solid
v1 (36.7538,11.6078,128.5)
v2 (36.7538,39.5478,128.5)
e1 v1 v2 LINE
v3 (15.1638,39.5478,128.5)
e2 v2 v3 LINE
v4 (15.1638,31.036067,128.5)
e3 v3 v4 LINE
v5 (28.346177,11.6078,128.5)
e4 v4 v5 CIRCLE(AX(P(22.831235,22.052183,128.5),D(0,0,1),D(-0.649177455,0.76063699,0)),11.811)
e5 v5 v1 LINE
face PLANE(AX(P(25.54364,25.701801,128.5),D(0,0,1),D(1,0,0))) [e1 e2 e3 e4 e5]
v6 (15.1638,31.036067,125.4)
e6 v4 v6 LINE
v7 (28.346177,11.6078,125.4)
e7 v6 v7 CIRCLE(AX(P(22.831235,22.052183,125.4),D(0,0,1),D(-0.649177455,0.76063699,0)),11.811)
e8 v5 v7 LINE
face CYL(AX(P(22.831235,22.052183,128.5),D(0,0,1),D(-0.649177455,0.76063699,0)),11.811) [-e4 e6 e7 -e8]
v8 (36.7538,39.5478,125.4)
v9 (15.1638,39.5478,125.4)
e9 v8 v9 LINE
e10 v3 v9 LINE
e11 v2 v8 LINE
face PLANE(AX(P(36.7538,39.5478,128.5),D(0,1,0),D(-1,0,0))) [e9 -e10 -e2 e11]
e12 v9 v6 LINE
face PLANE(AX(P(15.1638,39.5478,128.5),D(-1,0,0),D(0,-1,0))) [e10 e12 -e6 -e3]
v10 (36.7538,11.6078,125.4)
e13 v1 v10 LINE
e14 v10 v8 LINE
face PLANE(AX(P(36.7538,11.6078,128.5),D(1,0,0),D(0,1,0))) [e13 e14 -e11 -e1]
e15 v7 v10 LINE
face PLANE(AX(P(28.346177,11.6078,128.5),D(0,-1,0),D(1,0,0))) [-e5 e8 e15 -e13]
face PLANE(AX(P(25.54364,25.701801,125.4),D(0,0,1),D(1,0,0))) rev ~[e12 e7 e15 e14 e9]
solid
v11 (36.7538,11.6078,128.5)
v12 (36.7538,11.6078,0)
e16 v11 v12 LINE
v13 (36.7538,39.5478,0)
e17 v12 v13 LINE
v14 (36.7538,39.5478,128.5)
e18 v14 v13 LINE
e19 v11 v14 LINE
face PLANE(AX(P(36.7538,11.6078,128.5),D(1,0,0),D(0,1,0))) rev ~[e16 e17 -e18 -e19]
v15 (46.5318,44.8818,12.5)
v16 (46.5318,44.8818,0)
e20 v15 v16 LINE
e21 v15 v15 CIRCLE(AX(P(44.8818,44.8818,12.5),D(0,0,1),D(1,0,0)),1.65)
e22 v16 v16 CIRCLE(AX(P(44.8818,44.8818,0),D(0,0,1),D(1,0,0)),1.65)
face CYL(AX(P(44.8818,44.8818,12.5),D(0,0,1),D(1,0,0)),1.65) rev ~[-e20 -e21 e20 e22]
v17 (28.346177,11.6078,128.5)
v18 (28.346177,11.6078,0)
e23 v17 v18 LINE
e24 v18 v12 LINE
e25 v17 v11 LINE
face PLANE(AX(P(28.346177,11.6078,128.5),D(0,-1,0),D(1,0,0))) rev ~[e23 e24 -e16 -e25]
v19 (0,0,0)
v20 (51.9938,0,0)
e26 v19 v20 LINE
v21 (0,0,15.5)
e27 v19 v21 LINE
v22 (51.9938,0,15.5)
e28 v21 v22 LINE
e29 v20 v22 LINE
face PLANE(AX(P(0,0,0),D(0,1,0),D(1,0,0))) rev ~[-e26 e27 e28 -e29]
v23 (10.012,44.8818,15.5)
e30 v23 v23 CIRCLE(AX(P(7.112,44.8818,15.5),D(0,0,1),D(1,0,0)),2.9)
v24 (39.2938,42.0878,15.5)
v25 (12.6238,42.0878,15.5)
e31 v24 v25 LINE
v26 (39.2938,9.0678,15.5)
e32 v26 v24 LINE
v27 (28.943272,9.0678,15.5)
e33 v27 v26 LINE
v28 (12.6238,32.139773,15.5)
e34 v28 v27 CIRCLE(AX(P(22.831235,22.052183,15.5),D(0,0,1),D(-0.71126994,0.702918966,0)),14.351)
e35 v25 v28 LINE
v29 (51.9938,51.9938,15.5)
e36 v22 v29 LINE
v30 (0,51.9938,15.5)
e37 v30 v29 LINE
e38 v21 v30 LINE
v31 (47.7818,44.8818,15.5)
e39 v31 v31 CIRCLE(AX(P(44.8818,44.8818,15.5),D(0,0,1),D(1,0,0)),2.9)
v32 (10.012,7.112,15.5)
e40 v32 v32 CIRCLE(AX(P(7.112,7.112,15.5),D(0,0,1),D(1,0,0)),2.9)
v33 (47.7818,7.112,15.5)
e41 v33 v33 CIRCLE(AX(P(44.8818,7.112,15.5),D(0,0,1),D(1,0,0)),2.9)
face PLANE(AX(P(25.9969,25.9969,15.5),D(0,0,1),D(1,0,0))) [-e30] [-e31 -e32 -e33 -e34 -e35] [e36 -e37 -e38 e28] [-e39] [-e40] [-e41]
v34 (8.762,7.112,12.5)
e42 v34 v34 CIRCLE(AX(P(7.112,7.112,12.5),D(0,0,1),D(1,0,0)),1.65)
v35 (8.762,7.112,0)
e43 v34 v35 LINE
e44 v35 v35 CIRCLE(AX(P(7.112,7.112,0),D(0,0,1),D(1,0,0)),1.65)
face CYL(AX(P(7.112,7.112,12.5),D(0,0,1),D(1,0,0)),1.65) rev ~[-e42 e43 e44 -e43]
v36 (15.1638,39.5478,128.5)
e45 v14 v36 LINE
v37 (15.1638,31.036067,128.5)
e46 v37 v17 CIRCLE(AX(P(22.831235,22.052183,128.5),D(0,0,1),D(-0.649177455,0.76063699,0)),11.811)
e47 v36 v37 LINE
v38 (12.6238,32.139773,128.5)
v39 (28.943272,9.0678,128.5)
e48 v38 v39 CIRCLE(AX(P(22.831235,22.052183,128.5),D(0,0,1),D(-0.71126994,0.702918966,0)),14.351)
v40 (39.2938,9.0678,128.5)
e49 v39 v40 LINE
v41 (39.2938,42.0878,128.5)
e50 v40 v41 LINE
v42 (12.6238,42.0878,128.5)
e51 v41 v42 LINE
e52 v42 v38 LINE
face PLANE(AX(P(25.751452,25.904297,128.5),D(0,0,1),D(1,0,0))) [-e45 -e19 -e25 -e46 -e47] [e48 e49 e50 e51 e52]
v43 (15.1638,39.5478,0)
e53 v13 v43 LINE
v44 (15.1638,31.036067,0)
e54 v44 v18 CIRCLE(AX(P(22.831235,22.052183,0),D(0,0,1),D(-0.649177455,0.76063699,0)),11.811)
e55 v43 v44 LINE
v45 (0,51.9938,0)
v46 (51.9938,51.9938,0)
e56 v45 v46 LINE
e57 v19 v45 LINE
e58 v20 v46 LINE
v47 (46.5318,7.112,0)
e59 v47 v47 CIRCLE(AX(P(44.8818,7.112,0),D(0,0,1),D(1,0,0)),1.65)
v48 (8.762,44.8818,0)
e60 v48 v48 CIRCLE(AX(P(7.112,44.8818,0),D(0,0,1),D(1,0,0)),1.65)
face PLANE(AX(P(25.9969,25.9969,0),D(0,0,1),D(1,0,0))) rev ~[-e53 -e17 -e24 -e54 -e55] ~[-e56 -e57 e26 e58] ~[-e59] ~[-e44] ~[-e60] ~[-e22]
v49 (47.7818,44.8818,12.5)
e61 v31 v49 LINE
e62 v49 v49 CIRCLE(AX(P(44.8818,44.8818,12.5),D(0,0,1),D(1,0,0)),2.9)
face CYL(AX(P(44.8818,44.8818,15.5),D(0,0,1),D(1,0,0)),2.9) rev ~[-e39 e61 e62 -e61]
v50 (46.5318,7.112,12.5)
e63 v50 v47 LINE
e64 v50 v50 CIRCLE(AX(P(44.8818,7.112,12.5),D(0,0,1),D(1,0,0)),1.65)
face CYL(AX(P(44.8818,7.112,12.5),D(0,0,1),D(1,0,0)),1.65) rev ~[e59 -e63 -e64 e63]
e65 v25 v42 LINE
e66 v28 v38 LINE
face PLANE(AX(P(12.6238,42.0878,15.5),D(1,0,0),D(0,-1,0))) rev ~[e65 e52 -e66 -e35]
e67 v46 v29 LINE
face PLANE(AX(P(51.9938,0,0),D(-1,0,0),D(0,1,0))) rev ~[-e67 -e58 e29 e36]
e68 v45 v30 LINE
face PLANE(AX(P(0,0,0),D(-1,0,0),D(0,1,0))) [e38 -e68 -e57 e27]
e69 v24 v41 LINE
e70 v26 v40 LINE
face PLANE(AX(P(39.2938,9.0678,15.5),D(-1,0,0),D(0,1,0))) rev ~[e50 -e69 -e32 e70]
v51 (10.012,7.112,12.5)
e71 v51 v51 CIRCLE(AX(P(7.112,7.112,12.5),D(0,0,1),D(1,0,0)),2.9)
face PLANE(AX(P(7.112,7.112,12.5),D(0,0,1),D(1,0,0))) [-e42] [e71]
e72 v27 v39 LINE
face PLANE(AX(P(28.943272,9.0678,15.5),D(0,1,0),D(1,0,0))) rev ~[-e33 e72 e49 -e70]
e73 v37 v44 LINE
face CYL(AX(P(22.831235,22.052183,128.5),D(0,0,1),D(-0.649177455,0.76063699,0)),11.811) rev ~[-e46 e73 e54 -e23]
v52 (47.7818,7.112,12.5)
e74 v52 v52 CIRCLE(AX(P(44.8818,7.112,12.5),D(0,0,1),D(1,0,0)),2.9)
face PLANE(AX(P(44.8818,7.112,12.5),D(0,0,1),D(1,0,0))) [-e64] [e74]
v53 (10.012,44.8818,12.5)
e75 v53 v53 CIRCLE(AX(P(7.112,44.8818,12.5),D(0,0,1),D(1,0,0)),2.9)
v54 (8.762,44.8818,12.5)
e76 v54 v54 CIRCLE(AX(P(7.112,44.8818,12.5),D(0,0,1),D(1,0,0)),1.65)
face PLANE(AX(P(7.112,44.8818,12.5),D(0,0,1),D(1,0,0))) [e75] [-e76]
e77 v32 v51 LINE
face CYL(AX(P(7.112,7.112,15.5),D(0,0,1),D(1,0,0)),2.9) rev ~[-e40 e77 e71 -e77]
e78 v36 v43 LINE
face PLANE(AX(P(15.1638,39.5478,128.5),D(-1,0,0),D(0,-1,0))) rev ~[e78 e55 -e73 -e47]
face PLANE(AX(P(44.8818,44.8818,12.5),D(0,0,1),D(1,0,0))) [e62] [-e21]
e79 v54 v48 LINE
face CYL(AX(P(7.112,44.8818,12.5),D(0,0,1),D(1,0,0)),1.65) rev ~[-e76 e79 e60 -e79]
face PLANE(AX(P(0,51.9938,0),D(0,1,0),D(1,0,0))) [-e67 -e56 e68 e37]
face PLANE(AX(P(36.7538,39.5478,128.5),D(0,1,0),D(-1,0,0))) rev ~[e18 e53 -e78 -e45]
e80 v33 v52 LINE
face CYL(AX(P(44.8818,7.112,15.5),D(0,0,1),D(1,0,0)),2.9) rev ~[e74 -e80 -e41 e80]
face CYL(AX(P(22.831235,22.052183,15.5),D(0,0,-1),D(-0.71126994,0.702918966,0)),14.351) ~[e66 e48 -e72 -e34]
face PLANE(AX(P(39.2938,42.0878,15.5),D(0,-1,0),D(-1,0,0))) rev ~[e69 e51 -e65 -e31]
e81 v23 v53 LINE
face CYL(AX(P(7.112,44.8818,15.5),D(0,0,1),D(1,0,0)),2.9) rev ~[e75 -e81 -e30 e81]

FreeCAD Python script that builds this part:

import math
import FreeCAD as App
import Part
import Sketcher

V = App.Vector
Q = App.Units.Quantity

doc = App.newDocument("Part")
body = doc.addObject("PartDesign::Body", "Body")

# Sketch on XY plane
sketch1 = body.newObject("Sketcher::SketchObject", "Sketch")
sketch1.AttachmentSupport = (doc.getObject("XY_Plane"), [""])
sketch1.MapMode = "FlatFace"
sketch1.addGeometry(Part.LineSegment(V(0, 51.9938, 0), V(0, 0, 0)), False)
sketch1.addGeometry(Part.LineSegment(V(0, 0, 0), V(51.9938, 0, 0)), False)
sketch1.addGeometry(Part.LineSegment(V(51.9938, 0, 0), V(51.9938, 51.9938, 0)), False)
sketch1.addGeometry(Part.LineSegment(V(51.9938, 51.9938, 0), V(0, 51.9938, 0)), False)
sketch1.addConstraint(Sketcher.Constraint("Coincident", 0, 2, 1, 1))
sketch1.addConstraint(Sketcher.Constraint("Coincident", 1, 2, 2, 1))
sketch1.addConstraint(Sketcher.Constraint("Coincident", 2, 2, 3, 1))
sketch1.addConstraint(Sketcher.Constraint("Coincident", 3, 2, 0, 1))
sketch1.addConstraint(Sketcher.Constraint("Vertical", 0))
sketch1.addConstraint(Sketcher.Constraint("Horizontal", 1))
sketch1.addConstraint(Sketcher.Constraint("Vertical", 2))
sketch1.addConstraint(Sketcher.Constraint("Horizontal", 3))
sketch1.addConstraint(Sketcher.Constraint("Coincident", 0, 2, -1, 1))
sketch1.addConstraint(Sketcher.Constraint("Equal", 3, 0))
sketch1.addConstraint(Sketcher.Constraint("DistanceX", 1, 1, 1, 2, Q("2.047 in")))
pad1 = body.newObject("PartDesign::Pad", "Pad")
pad1.Profile = sketch1
pad1.Length = 15.5

# Sketch on XY plane
sketch2 = body.newObject("Sketcher::SketchObject", "Sketch001")
sketch2.AttachmentSupport = (doc.getObject("XY_Plane"), [""])
sketch2.MapMode = "FlatFace"
sketch2.AttachmentOffset = App.Placement(V(0, 0, 15.5), App.Rotation())
sketch2.addGeometry(Part.Circle(V(7.112, 44.8818, 0), V(0, 0, 1), 2.9), False)
sketch2.addGeometry(Part.Circle(V(44.8818, 44.8818, 0), V(0, 0, 1), 2.9), False)
sketch2.addGeometry(Part.Circle(V(7.112, 7.112, 0), V(0, 0, 1), 2.9), False)
sketch2.addGeometry(Part.Circle(V(44.8818, 7.112, 0), V(0, 0, 1), 2.9), False)
sketch2.addConstraint(Sketcher.Constraint("Equal", 0, 1))
sketch2.addConstraint(Sketcher.Constraint("Equal", 1, 2))
sketch2.addConstraint(Sketcher.Constraint("Equal", 2, 3))
sketch2.addConstraint(Sketcher.Constraint("Horizontal", 0, 3, 1, 3))
sketch2.addConstraint(Sketcher.Constraint("Horizontal", 2, 3, 3, 3))
sketch2.addConstraint(Sketcher.Constraint("Vertical", 0, 3, 2, 3))
sketch2.addConstraint(Sketcher.Constraint("Vertical", 1, 3, 3, 3))
sketch2.addConstraint(Sketcher.Constraint("Diameter", 0, 5.8))
sketch2.addConstraint(Sketcher.Constraint("DistanceX", -1, 1, 0, 3, Q("0.28 in")))
sketch2.addConstraint(Sketcher.Constraint("DistanceY", -1, 1, 2, 3, Q("0.28 in")))
sketch2.addConstraint(Sketcher.Constraint("DistanceY", -1, 1, 0, 3, Q("1.767 in")))
sketch2.addConstraint(Sketcher.Constraint("DistanceX", -1, 1, 1, 3, Q("1.767 in")))
pocket1 = body.newObject("PartDesign::Pocket", "Pocket")
pocket1.Profile = sketch2
pocket1.Length = 3

# Sketch on XY plane
sketch3 = body.newObject("Sketcher::SketchObject", "Sketch002")
sketch3.AttachmentSupport = (doc.getObject("XY_Plane"), [""])
sketch3.MapMode = "FlatFace"
sketch3.AttachmentOffset = App.Placement(V(0, 0, 12.5), App.Rotation())
sketch3.addGeometry(Part.Circle(V(7.112, 44.8818, 0), V(0, 0, 1), 1.65), False)
sketch3.addConstraint(Sketcher.Constraint("Diameter", 0, 3.3))
sketch3.addConstraint(Sketcher.Constraint("DistanceX", -1, 1, 0, 3, Q("0.28 in")))
sketch3.addConstraint(Sketcher.Constraint("DistanceY", -1, 1, 0, 3, Q("1.767 in")))
pocket2 = body.newObject("PartDesign::Pocket", "Pocket001")
pocket2.Profile = sketch3
pocket2.Type = "ThroughAll"

# Sketch on XY plane
sketch4 = body.newObject("Sketcher::SketchObject", "Sketch003")
sketch4.AttachmentSupport = (doc.getObject("XY_Plane"), [""])
sketch4.MapMode = "FlatFace"
sketch4.AttachmentOffset = App.Placement(V(0, 0, 12.5), App.Rotation())
sketch4.addGeometry(Part.Circle(V(44.8818, 44.8818, 0), V(0, 0, 1), 1.65), False)
sketch4.addConstraint(Sketcher.Constraint("Diameter", 0, 3.3))
sketch4.addConstraint(Sketcher.Constraint("DistanceX", -1, 1, 0, 3, Q("1.767 in")))
sketch4.addConstraint(Sketcher.Constraint("DistanceY", -1, 1, 0, 3, Q("1.767 in")))
pocket3 = body.newObject("PartDesign::Pocket", "Pocket002")
pocket3.Profile = sketch4
pocket3.Type = "ThroughAll"

# Sketch on XY plane
sketch5 = body.newObject("Sketcher::SketchObject", "Sketch004")
sketch5.AttachmentSupport = (doc.getObject("XY_Plane"), [""])
sketch5.MapMode = "FlatFace"
sketch5.AttachmentOffset = App.Placement(V(0, 0, 12.5), App.Rotation())
sketch5.addGeometry(Part.Circle(V(7.112, 7.112, 0), V(0, 0, 1), 1.65), False)
sketch5.addConstraint(Sketcher.Constraint("Diameter", 0, 3.3))
sketch5.addConstraint(Sketcher.Constraint("DistanceX", -1, 1, 0, 3, Q("0.28 in")))
sketch5.addConstraint(Sketcher.Constraint("DistanceY", -1, 1, 0, 3, Q("0.28 in")))
pocket4 = body.newObject("PartDesign::Pocket", "Pocket003")
pocket4.Profile = sketch5
pocket4.Type = "ThroughAll"

# Sketch on XY plane
sketch6 = body.newObject("Sketcher::SketchObject", "Sketch005")
sketch6.AttachmentSupport = (doc.getObject("XY_Plane"), [""])
sketch6.MapMode = "FlatFace"
sketch6.AttachmentOffset = App.Placement(V(0, 0, 12.5), App.Rotation())
sketch6.addGeometry(Part.Circle(V(44.8818, 7.112, 0), V(0, 0, 1), 1.65), False)
sketch6.addConstraint(Sketcher.Constraint("Diameter", 0, 3.3))
sketch6.addConstraint(Sketcher.Constraint("DistanceY", -1, 1, 0, 3, Q("0.28 in")))
sketch6.addConstraint(Sketcher.Constraint("DistanceX", -1, 1, 0, 3, Q("1.767 in")))
pocket5 = body.newObject("PartDesign::Pocket", "Pocket004")
pocket5.Profile = sketch6
pocket5.Type = "ThroughAll"

# Sketch on XY plane
sketch7 = body.newObject("Sketcher::SketchObject", "Sketch006")
sketch7.AttachmentSupport = (doc.getObject("XY_Plane"), [""])
sketch7.MapMode = "FlatFace"
sketch7.AttachmentOffset = App.Placement(V(0, 0, 15.5), App.Rotation())
sketch7.addGeometry(Part.LineSegment(V(39.2938, 9.0678, 0), V(39.2938, 42.0878, 0)), False)
sketch7.addGeometry(Part.LineSegment(V(39.2938, 42.0878, 0), V(12.6238, 42.0878, 0)), False)
sketch7.addGeometry(Part.LineSegment(V(12.6238, 42.0878, 0), V(12.6238, 32.139773, 0)), False)
sketch7.addGeometry(Part.ArcOfCircle(Part.Circle(V(22.831235, 22.052183, 0), V(0, 0, 1), 14.351), math.radians(135.338335), math.radians(295.207407)), False)
sketch7.addGeometry(Part.LineSegment(V(28.943272, 9.0678, 0), V(39.2938, 9.0678, 0)), False)
sketch7.addConstraint(Sketcher.Constraint("Coincident", 0, 2, 1, 1))
sketch7.addConstraint(Sketcher.Constraint("Coincident", 1, 2, 2, 1))
sketch7.addConstraint(Sketcher.Constraint("Coincident", 2, 2, 3, 1))
sketch7.addConstraint(Sketcher.Constraint("Coincident", 3, 2, 4, 1))
sketch7.addConstraint(Sketcher.Constraint("Coincident", 4, 2, 0, 1))
sketch7.addConstraint(Sketcher.Constraint("Vertical", 0))
sketch7.addConstraint(Sketcher.Constraint("Horizontal", 1))
sketch7.addConstraint(Sketcher.Constraint("Vertical", 2))
sketch7.addConstraint(Sketcher.Constraint("Horizontal", 4))
sketch7.addConstraint(Sketcher.Constraint("DistanceY", 0, 1, 0, 2, Q("1.3 in")))
sketch7.addConstraint(Sketcher.Constraint("Radius", 3, Q("0.565 in")))
sketch7.addConstraint(Sketcher.Constraint("DistanceX", 1, 2, 1, 1, Q("1.05 in")))
sketch7.addConstraint(Sketcher.Constraint("DistanceX", -1, 1, 0, 2, Q("1.547 in")))
sketch7.addConstraint(Sketcher.Constraint("DistanceY", -1, 1, 0, 2, Q("1.657 in")))
sketch7.addConstraint(Sketcher.Constraint("DistanceX", 4, 1, 4, 2, 10.350528))
sketch7.addConstraint(Sketcher.Constraint("DistanceY", 2, 2, 2, 1, 9.948027))
pad2 = body.newObject("PartDesign::Pad", "Pad001")
pad2.Profile = sketch7
pad2.Length = 113

# Sketch on XY plane
sketch8 = body.newObject("Sketcher::SketchObject", "Sketch007")
sketch8.AttachmentSupport = (doc.getObject("XY_Plane"), [""])
sketch8.MapMode = "FlatFace"
sketch8.AttachmentOffset = App.Placement(V(0, 0, 128.5), App.Rotation())
sketch8.addGeometry(Part.LineSegment(V(36.7538, 11.6078, 0), V(36.7538, 39.5478, 0)), False)
sketch8.addGeometry(Part.LineSegment(V(36.7538, 39.5478, 0), V(15.1638, 39.5478, 0)), False)
sketch8.addGeometry(Part.LineSegment(V(15.1638, 39.5478, 0), V(15.1638, 31.036067, 0)), False)
sketch8.addGeometry(Part.ArcOfCircle(Part.Circle(V(22.831235, 22.052183, 0), V(0, 0, 1), 11.811), math.radians(130.479614), math.radians(297.835373)), False)
sketch8.addGeometry(Part.LineSegment(V(28.346177, 11.6078, 0), V(36.7538, 11.6078, 0)), False)
sketch8.addConstraint(Sketcher.Constraint("Coincident", 0, 2, 1, 1))
sketch8.addConstraint(Sketcher.Constraint("Coincident", 1, 2, 2, 1))
sketch8.addConstraint(Sketcher.Constraint("Coincident", 2, 2, 3, 1))
sketch8.addConstraint(Sketcher.Constraint("Coincident", 3, 2, 4, 1))
sketch8.addConstraint(Sketcher.Constraint("Coincident", 4, 2, 0, 1))
sketch8.addConstraint(Sketcher.Constraint("Vertical", 0))
sketch8.addConstraint(Sketcher.Constraint("Horizontal", 1))
sketch8.addConstraint(Sketcher.Constraint("Vertical", 2))
sketch8.addConstraint(Sketcher.Constraint("Horizontal", 4))
sketch8.addConstraint(Sketcher.Constraint("DistanceY", 0, 1, 0, 2, Q("1.1 in")))
sketch8.addConstraint(Sketcher.Constraint("Radius", 3, Q("0.465 in")))
sketch8.addConstraint(Sketcher.Constraint("DistanceX", 1, 2, 1, 1, Q("0.85 in")))
sketch8.addConstraint(Sketcher.Constraint("DistanceX", -1, 1, 0, 2, Q("1.447 in")))
sketch8.addConstraint(Sketcher.Constraint("DistanceY", -1, 1, 0, 2, Q("1.557 in")))
sketch8.addConstraint(Sketcher.Constraint("DistanceX", 4, 1, 4, 2, 8.407623))
sketch8.addConstraint(Sketcher.Constraint("DistanceY", 2, 2, 2, 1, 8.511733))
pocket6 = body.newObject("PartDesign::Pocket", "Pocket005")
pocket6.Profile = sketch8
pocket6.Type = "ThroughAll"
body2 = doc.addObject("PartDesign::Body", "Body001")

# Sketch on XY plane
sketch9 = body2.newObject("Sketcher::SketchObject", "Sketch008")
sketch9.AttachmentSupport = (doc.getObject("XY_Plane001"), [""])
sketch9.MapMode = "FlatFace"
sketch9.AttachmentOffset = App.Placement(V(0, 0, 128.5), App.Rotation())
sketch9.addGeometry(Part.LineSegment(V(36.7538, 39.5478, 0), V(15.1638, 39.5478, 0)), False)
sketch9.addGeometry(Part.LineSegment(V(15.1638, 39.5478, 0), V(15.1638, 31.036067, 0)), False)
sketch9.addGeometry(Part.ArcOfCircle(Part.Circle(V(22.831235, 22.052183, 0), V(0, 0, 1), 11.811), math.radians(130.479614), math.radians(297.835373)), False)
sketch9.addGeometry(Part.LineSegment(V(28.346177, 11.6078, 0), V(36.7538, 11.6078, 0)), False)
sketch9.addGeometry(Part.LineSegment(V(36.7538, 11.6078, 0), V(36.7538, 39.5478, 0)), False)
sketch9.addConstraint(Sketcher.Constraint("Coincident", 0, 2, 1, 1))
sketch9.addConstraint(Sketcher.Constraint("Coincident", 1, 2, 2, 1))
sketch9.addConstraint(Sketcher.Constraint("Coincident", 2, 2, 3, 1))
sketch9.addConstraint(Sketcher.Constraint("Coincident", 3, 2, 4, 1))
sketch9.addConstraint(Sketcher.Constraint("Coincident", 4, 2, 0, 1))
sketch9.addConstraint(Sketcher.Constraint("Horizontal", 0))
sketch9.addConstraint(Sketcher.Constraint("Vertical", 1))
sketch9.addConstraint(Sketcher.Constraint("Horizontal", 3))
sketch9.addConstraint(Sketcher.Constraint("Vertical", 4))
sketch9.addConstraint(Sketcher.Constraint("DistanceY", 4, 1, 4, 2, Q("1.1 in")))
sketch9.addConstraint(Sketcher.Constraint("Radius", 2, Q("0.465 in")))
sketch9.addConstraint(Sketcher.Constraint("DistanceX", 0, 2, 0, 1, Q("0.85 in")))
sketch9.addConstraint(Sketcher.Constraint("DistanceX", -1, 1, 0, 2, Q("0.597 in")))
sketch9.addConstraint(Sketcher.Constraint("DistanceY", -1, 1, 0, 2, Q("1.557 in")))
sketch9.addConstraint(Sketcher.Constraint("DistanceX", 3, 1, 3, 2, 8.407623))
sketch9.addConstraint(Sketcher.Constraint("DistanceY", 1, 2, 1, 1, 8.511733))
pad3 = body2.newObject("PartDesign::Pad", "Pad002")
pad3.Profile = sketch9
pad3.Length = 3.1
pad3.Reversed = True

doc.recompute()
